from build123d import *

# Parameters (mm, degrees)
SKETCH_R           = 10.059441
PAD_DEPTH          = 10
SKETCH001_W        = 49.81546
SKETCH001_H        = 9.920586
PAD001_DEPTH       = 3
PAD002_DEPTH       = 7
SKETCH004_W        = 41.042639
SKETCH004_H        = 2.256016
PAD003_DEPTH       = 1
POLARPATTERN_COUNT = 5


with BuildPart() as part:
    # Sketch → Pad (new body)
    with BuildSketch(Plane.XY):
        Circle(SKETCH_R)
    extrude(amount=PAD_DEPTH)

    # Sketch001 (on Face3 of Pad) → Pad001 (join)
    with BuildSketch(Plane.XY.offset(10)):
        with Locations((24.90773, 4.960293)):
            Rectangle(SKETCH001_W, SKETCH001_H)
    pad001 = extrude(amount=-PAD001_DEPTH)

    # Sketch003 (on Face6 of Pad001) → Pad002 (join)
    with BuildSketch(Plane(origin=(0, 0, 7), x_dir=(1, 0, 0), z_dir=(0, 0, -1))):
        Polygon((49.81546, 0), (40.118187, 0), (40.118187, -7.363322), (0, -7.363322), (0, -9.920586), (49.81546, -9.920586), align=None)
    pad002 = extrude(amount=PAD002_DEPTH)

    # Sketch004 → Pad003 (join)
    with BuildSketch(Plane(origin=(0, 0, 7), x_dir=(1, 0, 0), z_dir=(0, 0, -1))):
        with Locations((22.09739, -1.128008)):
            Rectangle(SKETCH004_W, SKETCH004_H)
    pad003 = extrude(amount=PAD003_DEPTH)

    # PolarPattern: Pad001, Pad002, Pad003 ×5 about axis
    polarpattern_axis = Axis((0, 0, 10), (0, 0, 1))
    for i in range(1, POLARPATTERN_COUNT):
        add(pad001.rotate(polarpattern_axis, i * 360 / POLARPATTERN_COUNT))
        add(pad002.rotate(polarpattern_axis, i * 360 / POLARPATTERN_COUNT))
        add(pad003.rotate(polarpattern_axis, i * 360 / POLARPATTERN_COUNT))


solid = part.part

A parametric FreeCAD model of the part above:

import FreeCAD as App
import Part
import Sketcher

V = App.Vector
Q = App.Units.Quantity

doc = App.newDocument("Part")
body = doc.addObject("PartDesign::Body", "Body")

sketch1 = body.newObject("Sketcher::SketchObject", "Sketch")
sketch1.AttachmentSupport = (doc.getObject("XY_Plane"), [""])
sketch1.MapMode = "FlatFace"
sketch1.addGeometry(Part.Circle(V(0, 0, 0), V(0, 0, 1), 10), False)
sketch1.addConstraint([
    Sketcher.Constraint("Coincident", 0, 3, -1, 1),
    Sketcher.Constraint("Diameter", 0, Q("20.118882 mm")),
])
pad1 = body.newObject("PartDesign::Pad", "Pad")
pad1.Profile = sketch1
pad1.Length = 10

sketch2 = body.newObject("Sketcher::SketchObject", "Sketch001")
sketch2.AttachmentSupport = (doc.getObject("XY_Plane"), [""])
sketch2.MapMode = "FlatFace"
sketch2.AttachmentOffset = App.Placement(V(0, 0, 10), App.Rotation())
sketch2.addGeometry([
    Part.LineSegment(V(0, 10, 0), V(0, 0, 0)),
    Part.LineSegment(V(0, 0, 0), V(50, 0, 0)),
    Part.LineSegment(V(50, 0, 0), V(50, 10, 0)),
    Part.LineSegment(V(50, 10, 0), V(0, 10, 0)),
], False)
sketch2.addConstraint([
    Sketcher.Constraint("Coincident", 0, 2, 1, 1),
    Sketcher.Constraint("Coincident", 1, 2, 2, 1),
    Sketcher.Constraint("Coincident", 2, 2, 3, 1),
    Sketcher.Constraint("Coincident", 3, 2, 0, 1),
    Sketcher.Constraint("Vertical", 0),
    Sketcher.Constraint("Horizontal", 1),
    Sketcher.Constraint("Vertical", 2),
    Sketcher.Constraint("Horizontal", 3),
    Sketcher.Constraint("Coincident", 0, 2, -1, 1),
    Sketcher.Constraint("DistanceX", 1, 1, 1, 2, Q("49.81546 mm")),
    Sketcher.Constraint("DistanceY", 0, 2, 0, 1, Q("9.920586 mm")),
])
pad2 = body.newObject("PartDesign::Pad", "Pad001")
pad2.Profile = sketch2
pad2.Length = 3
pad2.Reversed = True

sketch3 = body.newObject("Sketcher::SketchObject", "Sketch002")
sketch3.AttachmentSupport = (doc.getObject("XY_Plane"), [""])
sketch3.MapMode = "FlatFace"
sketch3.AttachmentOffset = App.Placement(V(0, 0, 7), App.Rotation())
sketch3.addGeometry([
    Part.LineSegment(V(49.8, 0, 0), V(40.1, 0, 0)),
    Part.LineSegment(V(40.1, 0, 0), V(40.1, 7.4, 0)),
    Part.LineSegment(V(40.1, 7.4, 0), V(0, 7.4, 0)),
    Part.LineSegment(V(0, 7.4, 0), V(0, 9.9, 0)),
    Part.LineSegment(V(0, 9.9, 0), V(49.8, 9.9, 0)),
    Part.LineSegment(V(49.8, 9.9, 0), V(49.8, 0, 0)),
], False)
sketch3.addConstraint([
    Sketcher.Constraint("Coincident", 0, 2, 1, 1),
    Sketcher.Constraint("Coincident", 1, 2, 2, 1),
    Sketcher.Constraint("Coincident", 2, 2, 3, 1),
    Sketcher.Constraint("Coincident", 3, 2, 4, 1),
    Sketcher.Constraint("Coincident", 4, 2, 5, 1),
    Sketcher.Constraint("Coincident", 5, 2, 0, 1),
    Sketcher.Constraint("Horizontal", 0),
    Sketcher.Constraint("Vertical", 1),
    Sketcher.Constraint("Horizontal", 2),
    Sketcher.Constraint("Vertical", 3),
    Sketcher.Constraint("Horizontal", 4),
    Sketcher.Constraint("Vertical", 5),
    Sketcher.Constraint("PointOnObject", 0, 2, -1),
    Sketcher.Constraint("PointOnObject", 2, 2, -2),
    Sketcher.Constraint("DistanceX", 4, 1, 4, 2, Q("49.81546 mm")),
    Sketcher.Constraint("DistanceX", 0, 2, 0, 1, Q("9.697273 mm")),
    Sketcher.Constraint("DistanceY", 1, 1, 1, 2, Q("7.363322 mm")),
    Sketcher.Constraint("DistanceY", 3, 1, 3, 2, Q("2.557264 mm")),
])
pad3 = body.newObject("PartDesign::Pad", "Pad002")
pad3.Profile = sketch3
pad3.Length = 7
pad3.Reversed = True

sketch4 = body.newObject("Sketcher::SketchObject", "Sketch003")
sketch4.AttachmentSupport = (doc.getObject("XY_Plane"), [""])
sketch4.MapMode = "FlatFace"
sketch4.AttachmentOffset = App.Placement(V(0, 0, 7), App.Rotation())
sketch4.addGeometry([
    Part.LineSegment(V(1.6, 0, 0), V(1.6, 2.3, 0)),
    Part.LineSegment(V(1.6, 2.3, 0), V(42.6, 2.3, 0)),
    Part.LineSegment(V(42.6, 2.3, 0), V(42.6, 0, 0)),
    Part.LineSegment(V(42.6, 0, 0), V(1.6, 0, 0)),
], False)
sketch4.addConstraint([
    Sketcher.Constraint("Coincident", 0, 2, 1, 1),
    Sketcher.Constraint("Coincident", 1, 2, 2, 1),
    Sketcher.Constraint("Coincident", 2, 2, 3, 1),
    Sketcher.Constraint("Coincident", 3, 2, 0, 1),
    Sketcher.Constraint("Vertical", 0),
    Sketcher.Constraint("Horizontal", 1),
    Sketcher.Constraint("Vertical", 2),
    Sketcher.Constraint("Horizontal", 3),
    Sketcher.Constraint("PointOnObject", 2, 2, -1),
    Sketcher.Constraint("DistanceX", 1, 1, 1, 2, Q("41.042639 mm")),
    Sketcher.Constraint("DistanceY", 0, 1, 0, 2, Q("2.256016 mm")),
    Sketcher.Constraint("DistanceX", -1, 1, 0, 2, Q("1.57607 mm")),
])
pad4 = body.newObject("PartDesign::Pad", "Pad003")
pad4.Profile = sketch4
pad4.Length = 1
pad4.Reversed = True
doc.recompute()

polarpattern = body.newObject("PartDesign::PolarPattern", "PolarPattern")
polarpattern.Originals = [pad2, pad3, pad4]
polarpattern.Axis = (doc.getObject("Z_Axis"), [""])
polarpattern.Angle = 360
polarpattern.Occurrences = 5
body.Tip = polarpattern

doc.recompute()
